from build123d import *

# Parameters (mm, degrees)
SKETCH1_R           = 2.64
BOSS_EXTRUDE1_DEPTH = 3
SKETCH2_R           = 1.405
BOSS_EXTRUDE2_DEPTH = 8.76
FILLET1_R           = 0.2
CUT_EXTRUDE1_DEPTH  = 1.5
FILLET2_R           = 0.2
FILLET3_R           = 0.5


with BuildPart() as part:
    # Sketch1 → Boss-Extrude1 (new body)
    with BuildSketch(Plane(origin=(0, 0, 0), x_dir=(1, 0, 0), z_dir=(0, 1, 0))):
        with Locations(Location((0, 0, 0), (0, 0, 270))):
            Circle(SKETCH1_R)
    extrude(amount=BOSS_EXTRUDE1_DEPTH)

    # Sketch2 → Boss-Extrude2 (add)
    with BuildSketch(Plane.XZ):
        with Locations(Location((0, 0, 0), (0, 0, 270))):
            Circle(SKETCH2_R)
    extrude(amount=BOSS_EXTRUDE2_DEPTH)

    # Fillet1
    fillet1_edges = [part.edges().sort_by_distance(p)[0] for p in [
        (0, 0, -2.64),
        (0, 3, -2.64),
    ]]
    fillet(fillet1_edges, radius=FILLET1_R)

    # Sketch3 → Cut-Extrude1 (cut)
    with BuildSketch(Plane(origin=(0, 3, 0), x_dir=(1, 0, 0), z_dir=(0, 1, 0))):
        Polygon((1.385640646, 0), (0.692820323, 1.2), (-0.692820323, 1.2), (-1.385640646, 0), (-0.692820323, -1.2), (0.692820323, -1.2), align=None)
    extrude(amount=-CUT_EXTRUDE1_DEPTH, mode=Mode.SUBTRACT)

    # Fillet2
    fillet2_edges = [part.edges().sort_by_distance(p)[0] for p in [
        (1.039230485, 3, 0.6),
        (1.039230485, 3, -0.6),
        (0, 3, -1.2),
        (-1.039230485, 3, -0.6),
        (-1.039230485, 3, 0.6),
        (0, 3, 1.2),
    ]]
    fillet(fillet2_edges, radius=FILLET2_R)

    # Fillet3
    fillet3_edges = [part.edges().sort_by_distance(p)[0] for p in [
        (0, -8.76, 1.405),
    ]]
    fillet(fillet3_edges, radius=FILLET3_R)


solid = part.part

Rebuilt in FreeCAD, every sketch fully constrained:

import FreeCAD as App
import Part
import Sketcher
Q = App.Units.Quantity


def edges_at(feature, points):
    """Names of the edges that pass closest to the given points."""
    edges = feature.Shape.Edges
    near = lambda p: min(range(len(edges)), key=lambda i: edges[i].distToShape(Part.Vertex(*p))[0])
    return sorted({f"Edge{near(p) + 1}" for p in points})

doc = App.newDocument("Part")
params = doc.addObject("Spreadsheet::Sheet", "Params")
for row, (alias, value) in enumerate([
    ("sketch1_diameter", "5.28 mm"),
    ("pad1_length", "3 mm"),
    ("sketch2_diameter", "2.81 mm"),
    ("pad2_length", "8.76 mm"),
    ("fillet_radius", "0.2 mm"),
    ("pocket1_length", "1.5 mm"),
    ("fillet2_radius", "0.2 mm"),
    ("fillet3_radius", "0.5 mm"),
], start=1):
    params.set(f"A{row}", alias)
    params.set(f"B{row}", "=" + value)
    params.setAlias(f"B{row}", alias)

body = doc.addObject("PartDesign::Body", "Body")

# Sketch on XZ plane
sketch1 = body.newObject("Sketcher::SketchObject", "Sketch")
sketch1.AttachmentSupport = (doc.getObject("XZ_Plane"), [""])
sketch1.MapMode = "FlatFace"
sketch1.addGeometry(Part.Circle(App.Vector(0, 0, 0), App.Vector(0, 0, 1), 2.64), False)
sketch1.addConstraint([
    Sketcher.Constraint("Coincident", 0, 3, -1, 1),
    Sketcher.Constraint("Diameter", 0, Q("5.28 mm")),
])
sketch1.setExpression("Constraints[1]", "Params.sketch1_diameter")
pad1 = body.newObject("PartDesign::Pad", "Pad")
pad1.Profile = sketch1
pad1.setExpression("Length", "Params.pad1_length")
pad1.Reversed = True

# Sketch on XZ plane
sketch2 = body.newObject("Sketcher::SketchObject", "Sketch001")
sketch2.AttachmentSupport = (doc.getObject("XZ_Plane"), [""])
sketch2.MapMode = "FlatFace"
sketch2.addGeometry(Part.Circle(App.Vector(0, 0, 0), App.Vector(0, 0, 1), 1.405), False)
sketch2.addConstraint([
    Sketcher.Constraint("Coincident", 0, 3, -1, 1),
    Sketcher.Constraint("Diameter", 0, Q("2.81 mm")),
])
sketch2.setExpression("Constraints[1]", "Params.sketch2_diameter")
pad2 = body.newObject("PartDesign::Pad", "Pad001")
pad2.Profile = sketch2
pad2.setExpression("Length", "Params.pad2_length")
doc.recompute()

fillet = body.newObject("PartDesign::Fillet", "Fillet")
fillet.Base = (pad2, edges_at(pad2, [(0, 0, -2.64), (0, 3, -2.64)]))
fillet.setExpression("Radius", "Params.fillet_radius")

# Sketch on XZ plane
sketch3 = body.newObject("Sketcher::SketchObject", "Sketch002")
sketch3.AttachmentSupport = (doc.getObject("XZ_Plane"), [""])
sketch3.MapMode = "FlatFace"
sketch3.AttachmentOffset = App.Placement(App.Vector(0, 0, -3), App.Rotation())
sketch3.addGeometry([
    Part.LineSegment(App.Vector(1.385641, 0, 0), App.Vector(0.69282, -1.2, 0)),  # 0
    Part.LineSegment(App.Vector(0.69282, -1.2, 0), App.Vector(-0.69282, -1.2, 0)),  # 1
    Part.LineSegment(App.Vector(-0.69282, -1.2, 0), App.Vector(-1.385641, 0, 0)),  # 2
    Part.LineSegment(App.Vector(-1.385641, 0, 0), App.Vector(-0.69282, 1.2, 0)),  # 3
    Part.LineSegment(App.Vector(-0.69282, 1.2, 0), App.Vector(0.69282, 1.2, 0)),  # 4
    Part.LineSegment(App.Vector(0.69282, 1.2, 0), App.Vector(1.385641, 0, 0)),  # 5
], False)
sketch3.addConstraint([
    Sketcher.Constraint("Coincident", 0, 2, 1, 1),
    Sketcher.Constraint("Coincident", 1, 2, 2, 1),
    Sketcher.Constraint("Coincident", 2, 2, 3, 1),
    Sketcher.Constraint("Coincident", 3, 2, 4, 1),
    Sketcher.Constraint("Coincident", 4, 2, 5, 1),
    Sketcher.Constraint("Coincident", 5, 2, 0, 1),
    Sketcher.Constraint("Horizontal", 1),
    Sketcher.Constraint("Horizontal", 4),
    Sketcher.Constraint("Symmetric", 0, 2, 3, 2, -1, 1),
    Sketcher.Constraint("Symmetric", 2, 2, 5, 2, -1, 1),
    Sketcher.Constraint("PointOnObject", 2, 2, -1),
    Sketcher.Constraint("Parallel", 2, 5),
    Sketcher.Constraint("Vertical", 1, 2, 3, 2),
    Sketcher.Constraint("Angle", 0, Q("-120 deg")),
    Sketcher.Constraint("DistanceY", 0, 2, -1, 1, Q("1.2 mm")),
    Sketcher.Constraint("DistanceX", 1, 2, 1, 1, Q("1.385641 mm")),
])
pocket1 = body.newObject("PartDesign::Pocket", "Pocket")
pocket1.Profile = sketch3
pocket1.setExpression("Length", "Params.pocket1_length")
pocket1.Reversed = True
doc.recompute()

fillet2 = body.newObject("PartDesign::Fillet", "Fillet001")
fillet2.Base = (pocket1, edges_at(pocket1, [
    (1.039, 3, 0.6),
    (1.039, 3, -0.6),
    (0, 3, -1.2),
    (-1.039, 3, -0.6),
    (-1.039, 3, 0.6),
    (0, 3, 1.2),
]))
fillet2.setExpression("Radius", "Params.fillet2_radius")
doc.recompute()

fillet3 = body.newObject("PartDesign::Fillet", "Fillet002")
fillet3.Base = (fillet2, edges_at(fillet2, [(0, -8.76, 1.405)]))
fillet3.setExpression("Radius", "Params.fillet3_radius")

doc.recompute()
